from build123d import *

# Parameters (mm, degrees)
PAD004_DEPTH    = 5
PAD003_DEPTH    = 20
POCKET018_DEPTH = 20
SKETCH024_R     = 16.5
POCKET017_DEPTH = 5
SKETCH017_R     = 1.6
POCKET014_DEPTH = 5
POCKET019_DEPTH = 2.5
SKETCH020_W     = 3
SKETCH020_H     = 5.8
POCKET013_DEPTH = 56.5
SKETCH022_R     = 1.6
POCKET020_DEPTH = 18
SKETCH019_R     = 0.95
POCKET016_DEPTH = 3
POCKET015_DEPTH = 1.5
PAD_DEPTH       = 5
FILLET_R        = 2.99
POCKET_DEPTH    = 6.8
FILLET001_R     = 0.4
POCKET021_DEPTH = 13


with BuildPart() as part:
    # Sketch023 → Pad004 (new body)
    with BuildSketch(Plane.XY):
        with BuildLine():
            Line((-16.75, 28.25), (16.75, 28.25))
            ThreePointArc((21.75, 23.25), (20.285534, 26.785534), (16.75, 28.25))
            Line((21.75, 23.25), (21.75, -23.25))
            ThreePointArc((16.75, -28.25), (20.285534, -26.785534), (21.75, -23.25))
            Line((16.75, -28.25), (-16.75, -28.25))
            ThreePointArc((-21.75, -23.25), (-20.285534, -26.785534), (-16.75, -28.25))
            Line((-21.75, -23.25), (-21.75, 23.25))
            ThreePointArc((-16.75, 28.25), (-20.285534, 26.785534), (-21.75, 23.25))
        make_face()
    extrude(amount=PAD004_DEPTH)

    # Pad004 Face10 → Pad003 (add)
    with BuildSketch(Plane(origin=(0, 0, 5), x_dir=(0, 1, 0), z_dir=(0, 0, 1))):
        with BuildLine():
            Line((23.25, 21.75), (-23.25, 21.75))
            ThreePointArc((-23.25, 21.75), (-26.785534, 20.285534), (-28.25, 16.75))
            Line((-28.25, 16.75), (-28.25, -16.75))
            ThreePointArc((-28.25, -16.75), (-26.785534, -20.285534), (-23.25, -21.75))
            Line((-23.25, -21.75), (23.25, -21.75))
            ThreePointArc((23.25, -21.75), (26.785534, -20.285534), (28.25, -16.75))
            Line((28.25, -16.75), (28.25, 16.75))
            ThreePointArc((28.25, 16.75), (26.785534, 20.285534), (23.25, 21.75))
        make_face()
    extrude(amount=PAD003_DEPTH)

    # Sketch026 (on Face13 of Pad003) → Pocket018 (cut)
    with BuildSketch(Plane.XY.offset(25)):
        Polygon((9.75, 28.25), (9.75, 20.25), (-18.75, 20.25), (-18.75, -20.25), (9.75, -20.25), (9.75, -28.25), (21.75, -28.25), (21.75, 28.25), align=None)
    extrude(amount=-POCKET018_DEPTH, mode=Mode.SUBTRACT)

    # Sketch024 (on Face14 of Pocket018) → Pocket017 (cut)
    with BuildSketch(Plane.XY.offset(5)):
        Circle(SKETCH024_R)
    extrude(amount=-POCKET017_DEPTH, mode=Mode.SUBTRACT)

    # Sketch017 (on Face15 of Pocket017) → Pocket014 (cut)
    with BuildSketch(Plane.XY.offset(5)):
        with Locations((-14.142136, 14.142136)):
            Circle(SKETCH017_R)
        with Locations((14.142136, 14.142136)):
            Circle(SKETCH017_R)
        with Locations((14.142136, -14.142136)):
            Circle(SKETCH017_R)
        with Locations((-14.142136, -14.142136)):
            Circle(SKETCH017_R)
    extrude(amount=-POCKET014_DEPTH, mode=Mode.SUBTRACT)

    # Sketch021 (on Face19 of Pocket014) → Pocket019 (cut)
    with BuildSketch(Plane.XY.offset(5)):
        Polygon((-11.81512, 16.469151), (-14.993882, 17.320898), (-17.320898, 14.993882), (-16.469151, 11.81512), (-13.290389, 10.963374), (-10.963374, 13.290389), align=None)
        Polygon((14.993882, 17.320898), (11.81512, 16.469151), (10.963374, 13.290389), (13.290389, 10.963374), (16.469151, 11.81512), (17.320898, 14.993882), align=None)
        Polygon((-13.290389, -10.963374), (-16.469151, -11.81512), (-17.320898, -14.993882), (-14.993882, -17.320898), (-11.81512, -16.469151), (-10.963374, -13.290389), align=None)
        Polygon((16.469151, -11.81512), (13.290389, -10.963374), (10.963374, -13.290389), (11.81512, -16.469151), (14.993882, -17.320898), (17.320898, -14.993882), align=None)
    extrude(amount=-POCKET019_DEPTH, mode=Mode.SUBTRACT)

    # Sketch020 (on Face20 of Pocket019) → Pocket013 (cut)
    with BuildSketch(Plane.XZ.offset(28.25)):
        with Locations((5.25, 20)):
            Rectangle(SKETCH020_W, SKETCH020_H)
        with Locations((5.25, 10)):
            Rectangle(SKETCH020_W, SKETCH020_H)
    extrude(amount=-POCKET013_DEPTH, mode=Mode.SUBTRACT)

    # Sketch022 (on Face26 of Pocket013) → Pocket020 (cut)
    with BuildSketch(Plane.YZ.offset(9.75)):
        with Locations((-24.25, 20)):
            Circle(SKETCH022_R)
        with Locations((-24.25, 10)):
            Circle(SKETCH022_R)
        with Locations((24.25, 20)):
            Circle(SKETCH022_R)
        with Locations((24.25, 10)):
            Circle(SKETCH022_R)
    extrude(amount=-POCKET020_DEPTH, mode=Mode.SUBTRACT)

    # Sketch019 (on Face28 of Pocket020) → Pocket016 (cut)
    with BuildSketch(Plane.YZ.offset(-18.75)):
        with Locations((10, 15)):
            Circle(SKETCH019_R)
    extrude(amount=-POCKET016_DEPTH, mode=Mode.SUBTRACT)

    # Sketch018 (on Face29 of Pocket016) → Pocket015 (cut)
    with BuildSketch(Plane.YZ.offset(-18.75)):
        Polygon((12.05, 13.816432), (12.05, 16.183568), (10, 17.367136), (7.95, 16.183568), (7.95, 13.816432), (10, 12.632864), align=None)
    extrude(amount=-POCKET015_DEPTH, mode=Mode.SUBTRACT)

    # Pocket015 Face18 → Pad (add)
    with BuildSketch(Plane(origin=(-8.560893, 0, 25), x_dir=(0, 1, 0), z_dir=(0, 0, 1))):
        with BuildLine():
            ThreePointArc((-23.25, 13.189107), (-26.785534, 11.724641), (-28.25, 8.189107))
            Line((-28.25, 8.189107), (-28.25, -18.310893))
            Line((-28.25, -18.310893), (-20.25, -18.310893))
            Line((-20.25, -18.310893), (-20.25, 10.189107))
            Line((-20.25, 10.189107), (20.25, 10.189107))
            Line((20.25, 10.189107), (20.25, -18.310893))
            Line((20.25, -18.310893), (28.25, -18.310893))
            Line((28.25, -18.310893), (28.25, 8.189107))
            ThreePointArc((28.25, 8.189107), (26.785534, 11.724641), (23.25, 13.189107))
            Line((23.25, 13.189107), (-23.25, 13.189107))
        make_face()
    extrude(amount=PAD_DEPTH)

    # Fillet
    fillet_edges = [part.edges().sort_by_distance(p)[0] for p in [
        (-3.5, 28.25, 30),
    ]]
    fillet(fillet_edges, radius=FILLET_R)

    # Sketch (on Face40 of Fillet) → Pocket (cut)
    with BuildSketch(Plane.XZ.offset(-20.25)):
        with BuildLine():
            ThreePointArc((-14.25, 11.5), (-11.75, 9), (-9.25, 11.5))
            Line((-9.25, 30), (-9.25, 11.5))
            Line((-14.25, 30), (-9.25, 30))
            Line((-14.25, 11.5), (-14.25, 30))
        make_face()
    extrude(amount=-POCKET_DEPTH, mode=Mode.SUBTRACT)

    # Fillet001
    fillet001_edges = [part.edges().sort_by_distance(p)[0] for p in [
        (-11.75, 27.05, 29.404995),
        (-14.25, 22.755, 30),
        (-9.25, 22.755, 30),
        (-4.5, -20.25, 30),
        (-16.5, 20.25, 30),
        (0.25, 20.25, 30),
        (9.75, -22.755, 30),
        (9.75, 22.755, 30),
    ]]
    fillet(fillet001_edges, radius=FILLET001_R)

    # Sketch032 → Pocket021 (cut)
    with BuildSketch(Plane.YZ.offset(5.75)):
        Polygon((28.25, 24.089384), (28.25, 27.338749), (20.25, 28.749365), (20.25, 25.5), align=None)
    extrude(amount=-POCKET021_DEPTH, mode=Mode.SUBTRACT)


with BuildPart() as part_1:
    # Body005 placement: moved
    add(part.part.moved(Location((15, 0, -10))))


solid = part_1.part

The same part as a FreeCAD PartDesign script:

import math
import FreeCAD as App
import Part
import Sketcher

V = App.Vector
Q = App.Units.Quantity


def edges_at(feature, points):
    """Names of the edges that pass closest to the given points."""
    edges = feature.Shape.Edges
    near = lambda p: min(range(len(edges)), key=lambda i: edges[i].distToShape(Part.Vertex(*p))[0])
    return sorted({f"Edge{near(p) + 1}" for p in points})


def add_polygon(sketch, points):
    """Adds a closed chain of lines whose ends are joined by coincident constraints."""
    first, n = sketch.GeometryCount, len(points)
    for a, b in zip(points, points[1:] + points[:1]):
        sketch.addGeometry(Part.LineSegment(App.Vector(*a, 0), App.Vector(*b, 0)), False)
    for i in range(n):
        sketch.addConstraint(Sketcher.Constraint("Coincident", first + i, 2, first + (i + 1) % n, 1))

doc = App.newDocument("Part")
body = doc.addObject("PartDesign::Body", "Body")

# Sketch on XY plane
sketch1 = body.newObject("Sketcher::SketchObject", "Sketch")
sketch1.AttachmentSupport = (doc.getObject("XY_Plane"), [""])
sketch1.MapMode = "FlatFace"
sketch1.addGeometry(Part.LineSegment(V(16.8, 28.2, 0), V(-16.8, 28.2, 0)), False)
sketch1.addGeometry(Part.ArcOfCircle(Part.Circle(V(-16.8, 23.3, 0), V(0, 0, 1), 5), math.radians(90), math.radians(180)), False)
sketch1.addGeometry(Part.LineSegment(V(-21.8, 23.2, 0), V(-21.8, -23.2, 0)), False)
sketch1.addGeometry(Part.ArcOfCircle(Part.Circle(V(-16.8, -23.3, 0), V(0, 0, 1), 5), math.radians(180), math.radians(270)), False)
sketch1.addGeometry(Part.LineSegment(V(-16.8, -28.2, 0), V(16.8, -28.2, 0)), False)
sketch1.addGeometry(Part.ArcOfCircle(Part.Circle(V(16.8, -23.3, 0), V(0, 0, 1), 5), math.radians(-90), math.radians(0)), False)
sketch1.addGeometry(Part.LineSegment(V(21.8, -23.2, 0), V(21.8, 23.2, 0)), False)
sketch1.addGeometry(Part.ArcOfCircle(Part.Circle(V(16.8, 23.3, 0), V(0, 0, 1), 5), math.radians(0), math.radians(90)), False)
sketch1.addConstraint(Sketcher.Constraint("Tangent", 0, 2, 1, 1))
sketch1.addConstraint(Sketcher.Constraint("Tangent", 1, 2, 2, 1))
sketch1.addConstraint(Sketcher.Constraint("Tangent", 2, 2, 3, 1))
sketch1.addConstraint(Sketcher.Constraint("Tangent", 3, 2, 4, 1))
sketch1.addConstraint(Sketcher.Constraint("Tangent", 4, 2, 5, 1))
sketch1.addConstraint(Sketcher.Constraint("Tangent", 5, 2, 6, 1))
sketch1.addConstraint(Sketcher.Constraint("Tangent", 6, 2, 7, 1))
sketch1.addConstraint(Sketcher.Constraint("Tangent", 7, 2, 0, 1))
sketch1.addConstraint(Sketcher.Constraint("Horizontal", 0))
sketch1.addConstraint(Sketcher.Constraint("Vertical", 2))
sketch1.addConstraint(Sketcher.Constraint("Horizontal", 4))
sketch1.addConstraint(Sketcher.Constraint("Vertical", 6))
sketch1.addConstraint(Sketcher.Constraint("Equal", 1, 3))
sketch1.addConstraint(Sketcher.Constraint("Equal", 3, 5))
sketch1.addConstraint(Sketcher.Constraint("Equal", 5, 7))
sketch1.addConstraint(Sketcher.Constraint("Symmetric", 1, 3, 5, 3, -1, 1))
sketch1.addConstraint(Sketcher.Constraint("Radius", 1, Q("5 mm")))
sketch1.addConstraint(Sketcher.Constraint("DistanceX", 0, 2, 0, 1, Q("33.5 mm")))
sketch1.addConstraint(Sketcher.Constraint("DistanceY", 2, 2, 2, 1, Q("46.5 mm")))
pad1 = body.newObject("PartDesign::Pad", "Pad")
pad1.Profile = sketch1
pad1.Length = 5

# Sketch on XY plane
sketch2 = body.newObject("Sketcher::SketchObject", "Sketch001")
sketch2.AttachmentSupport = (doc.getObject("XY_Plane"), [""])
sketch2.MapMode = "FlatFace"
sketch2.AttachmentOffset = App.Placement(V(0, 0, 5), App.Rotation())
sketch2.addGeometry(Part.LineSegment(V(-21.8, 23.2, 0), V(-21.8, -23.2, 0)), False)
sketch2.addGeometry(Part.ArcOfCircle(Part.Circle(V(-16.8, -23.3, 0), V(0, 0, 1), 5), math.radians(180), math.radians(270)), False)
sketch2.addGeometry(Part.LineSegment(V(-16.8, -28.2, 0), V(16.8, -28.2, 0)), False)
sketch2.addGeometry(Part.ArcOfCircle(Part.Circle(V(16.8, -23.3, 0), V(0, 0, 1), 5), math.radians(-90), math.radians(0)), False)
sketch2.addGeometry(Part.LineSegment(V(21.8, -23.2, 0), V(21.8, 23.2, 0)), False)
sketch2.addGeometry(Part.ArcOfCircle(Part.Circle(V(16.8, 23.3, 0), V(0, 0, 1), 5), math.radians(0), math.radians(90)), False)
sketch2.addGeometry(Part.LineSegment(V(16.8, 28.2, 0), V(-16.8, 28.2, 0)), False)
sketch2.addGeometry(Part.ArcOfCircle(Part.Circle(V(-16.8, 23.3, 0), V(0, 0, 1), 5), math.radians(90), math.radians(180)), False)
sketch2.addConstraint(Sketcher.Constraint("Tangent", 0, 2, 1, 1))
sketch2.addConstraint(Sketcher.Constraint("Tangent", 1, 2, 2, 1))
sketch2.addConstraint(Sketcher.Constraint("Tangent", 2, 2, 3, 1))
sketch2.addConstraint(Sketcher.Constraint("Tangent", 3, 2, 4, 1))
sketch2.addConstraint(Sketcher.Constraint("Tangent", 4, 2, 5, 1))
sketch2.addConstraint(Sketcher.Constraint("Tangent", 5, 2, 6, 1))
sketch2.addConstraint(Sketcher.Constraint("Tangent", 6, 2, 7, 1))
sketch2.addConstraint(Sketcher.Constraint("Tangent", 7, 2, 0, 1))
sketch2.addConstraint(Sketcher.Constraint("Vertical", 0))
sketch2.addConstraint(Sketcher.Constraint("Horizontal", 2))
sketch2.addConstraint(Sketcher.Constraint("Vertical", 4))
sketch2.addConstraint(Sketcher.Constraint("Horizontal", 6))
sketch2.addConstraint(Sketcher.Constraint("Equal", 1, 3))
sketch2.addConstraint(Sketcher.Constraint("Equal", 3, 5))
sketch2.addConstraint(Sketcher.Constraint("Equal", 5, 7))
sketch2.addConstraint(Sketcher.Constraint("Symmetric", 1, 3, 5, 3, -1, 1))
sketch2.addConstraint(Sketcher.Constraint("Radius", 1, Q("5 mm")))
sketch2.addConstraint(Sketcher.Constraint("DistanceX", 2, 1, 2, 2, Q("33.5 mm")))
sketch2.addConstraint(Sketcher.Constraint("DistanceY", 0, 2, 0, 1, Q("46.5 mm")))
pad2 = body.newObject("PartDesign::Pad", "Pad001")
pad2.Profile = sketch2
pad2.Length = 20

# Sketch on XY plane
sketch3 = body.newObject("Sketcher::SketchObject", "Sketch002")
sketch3.AttachmentSupport = (doc.getObject("XY_Plane"), [""])
sketch3.MapMode = "FlatFace"
sketch3.AttachmentOffset = App.Placement(V(0, 0, 25), App.Rotation())
add_polygon(sketch3, [(10, 28), (10, 20), (-19, 20), (-19, -20), (10, -20), (10, -28), (22, -28), (22, 28)])  # lines 0-7
sketch3.addConstraint(Sketcher.Constraint("Vertical", 0))
sketch3.addConstraint(Sketcher.Constraint("Horizontal", 1))
sketch3.addConstraint(Sketcher.Constraint("Vertical", 2))
sketch3.addConstraint(Sketcher.Constraint("Horizontal", 3))
sketch3.addConstraint(Sketcher.Constraint("Vertical", 4))
sketch3.addConstraint(Sketcher.Constraint("Horizontal", 5))
sketch3.addConstraint(Sketcher.Constraint("Vertical", 6))
sketch3.addConstraint(Sketcher.Constraint("Horizontal", 7))
sketch3.addConstraint(Sketcher.Constraint("Symmetric", 0, 2, 3, 2, -1))
sketch3.addConstraint(Sketcher.Constraint("Equal", 0, 4))
sketch3.addConstraint(Sketcher.Constraint("DistanceX", 5, 1, 5, 2, Q("12 mm")))
sketch3.addConstraint(Sketcher.Constraint("DistanceY", 0, 2, 0, 1, Q("8 mm")))
sketch3.addConstraint(Sketcher.Constraint("DistanceX", 1, 2, 1, 1, Q("28.5 mm")))
sketch3.addConstraint(Sketcher.Constraint("DistanceY", 2, 2, 2, 1, Q("40.5 mm")))
sketch3.addConstraint(Sketcher.Constraint("DistanceX", -1, 1, 0, 2, Q("9.75 mm")))
pocket1 = body.newObject("PartDesign::Pocket", "Pocket")
pocket1.Profile = sketch3
pocket1.Length = 20

# Sketch on XY plane
sketch4 = body.newObject("Sketcher::SketchObject", "Sketch003")
sketch4.AttachmentSupport = (doc.getObject("XY_Plane"), [""])
sketch4.MapMode = "FlatFace"
sketch4.AttachmentOffset = App.Placement(V(0, 0, 5), App.Rotation())
sketch4.addGeometry(Part.Circle(V(0, 0, 0), V(0, 0, 1), 16), False)
sketch4.addConstraint(Sketcher.Constraint("Coincident", 0, 3, -1, 1))
sketch4.addConstraint(Sketcher.Constraint("Diameter", 0, Q("33 mm")))
pocket2 = body.newObject("PartDesign::Pocket", "Pocket001")
pocket2.Profile = sketch4
pocket2.Length = 5

# Sketch on XY plane
sketch5 = body.newObject("Sketcher::SketchObject", "Sketch004")
sketch5.AttachmentSupport = (doc.getObject("XY_Plane"), [""])
sketch5.MapMode = "FlatFace"
sketch5.AttachmentOffset = App.Placement(V(0, 0, 5), App.Rotation())
sketch5.addGeometry(Part.Circle(V(-14.1, 14.1, 0), V(0, 0, 1), 1.6), False)
sketch5.addGeometry(Part.Circle(V(14.1, 14.1, 0), V(0, 0, 1), 1.6), False)
sketch5.addGeometry(Part.Circle(V(14.1, -14.1, 0), V(0, 0, 1), 1.6), False)
sketch5.addGeometry(Part.Circle(V(-14.1, -14.1, 0), V(0, 0, 1), 1.6), False)
sketch5.addConstraint(Sketcher.Constraint("Equal", 0, 1))
sketch5.addConstraint(Sketcher.Constraint("Equal", 1, 2))
sketch5.addConstraint(Sketcher.Constraint("Equal", 2, 3))
sketch5.addConstraint(Sketcher.Constraint("Symmetric", 0, 3, 2, 3, -1, 1))
sketch5.addConstraint(Sketcher.Constraint("Symmetric", 1, 3, 3, 3, -1, 1))
sketch5.addConstraint(Sketcher.Constraint("Symmetric", 0, 3, 1, 3, -2))
sketch5.addConstraint(Sketcher.Constraint("Diameter", 0, Q("3.2 mm")))
sketch5.addConstraint(Sketcher.Constraint("DistanceX", 0, 3, -1, 1, Q("14.142136 mm")))
sketch5.addConstraint(Sketcher.Constraint("DistanceY", -1, 1, 0, 3, Q("14.142136 mm")))
pocket3 = body.newObject("PartDesign::Pocket", "Pocket002")
pocket3.Profile = sketch5
pocket3.Length = 5

# Sketch on XY plane
sketch6 = body.newObject("Sketcher::SketchObject", "Sketch005")
sketch6.AttachmentSupport = (doc.getObject("XY_Plane"), [""])
sketch6.MapMode = "FlatFace"
sketch6.AttachmentOffset = App.Placement(V(0, 0, 5), App.Rotation())
add_polygon(sketch6, [(-11.8, 16.5), (-15, 17.3), (-17.3, 15), (-16.5, 11.8), (-13.3, 11), (-11, 13.3)])  # lines 0-5
add_polygon(sketch6, [(15, 17.3), (11.8, 16.5), (11, 13.3), (13.3, 11), (16.5, 11.8), (17.3, 15)])  # lines 6-11
add_polygon(sketch6, [(-13.3, -11), (-16.5, -11.8), (-17.3, -15), (-15, -17.3), (-11.8, -16.5), (-11, -13.3)])  # lines 12-17
add_polygon(sketch6, [(16.5, -11.8), (13.3, -11), (11, -13.3), (11.8, -16.5), (15, -17.3), (17.3, -15)])  # lines 18-23
sketch6.addConstraint(Sketcher.Constraint("Symmetric", 9, 2, 12, 2, -1, 1))
sketch6.addConstraint(Sketcher.Constraint("Symmetric", 10, 2, 13, 2, -1, 1))
sketch6.addConstraint(Sketcher.Constraint("Symmetric", 11, 2, 14, 2, -1, 1))
sketch6.addConstraint(Sketcher.Constraint("Symmetric", 6, 2, 15, 2, -1, 1))
sketch6.addConstraint(Sketcher.Constraint("Symmetric", 7, 2, 16, 2, -1, 1))
sketch6.addConstraint(Sketcher.Constraint("Symmetric", 8, 2, 17, 2, -1, 1))
sketch6.addConstraint(Sketcher.Constraint("Symmetric", 3, 2, 18, 2, -1, 1))
sketch6.addConstraint(Sketcher.Constraint("Symmetric", 4, 2, 19, 2, -1, 1))
sketch6.addConstraint(Sketcher.Constraint("Symmetric", 5, 2, 20, 2, -1, 1))
sketch6.addConstraint(Sketcher.Constraint("Symmetric", 0, 2, 21, 2, -1, 1))
sketch6.addConstraint(Sketcher.Constraint("Symmetric", 1, 2, 22, 2, -1, 1))
sketch6.addConstraint(Sketcher.Constraint("Symmetric", 2, 2, 23, 2, -1, 1))
sketch6.addConstraint(Sketcher.Constraint("Symmetric", 5, 2, 6, 2, -2))
sketch6.addConstraint(Sketcher.Constraint("Symmetric", 4, 2, 7, 2, -2))
sketch6.addConstraint(Sketcher.Constraint("Symmetric", 3, 2, 8, 2, -2))
sketch6.addConstraint(Sketcher.Constraint("Symmetric", 2, 2, 9, 2, -2))
sketch6.addConstraint(Sketcher.Constraint("Symmetric", 1, 2, 10, 2, -2))
sketch6.addConstraint(Sketcher.Constraint("Symmetric", 0, 2, 11, 2, -2))
sketch6.addConstraint(Sketcher.Constraint("Parallel", 0, 3))
sketch6.addConstraint(Sketcher.Constraint("Parallel", 1, 4))
sketch6.addConstraint(Sketcher.Constraint("Parallel", 2, 5))
sketch6.addConstraint(Sketcher.Constraint("Perpendicular", 5, 6))
sketch6.addConstraint(Sketcher.Constraint("Perpendicular", 4, 8))
sketch6.addConstraint(Sketcher.Constraint("Equal", 0, 1))
sketch6.addConstraint(Sketcher.Constraint("Equal", 1, 2))
sketch6.addConstraint(Sketcher.Constraint("Equal", 2, 3))
sketch6.addConstraint(Sketcher.Constraint("Angle", 0, Q("164.999995 deg")))
sketch6.addConstraint(Sketcher.Constraint("DistanceX", 0, 2, 6, 2, Q("26.809002 mm")))
sketch6.addConstraint(Sketcher.Constraint("DistanceY", 12, 2, 1, 2, Q("26.809002 mm")))
sketch6.addConstraint(Sketcher.Constraint("DistanceX", 0, 2, -1, 1, Q("14.993882 mm")))
pocket4 = body.newObject("PartDesign::Pocket", "Pocket003")
pocket4.Profile = sketch6
pocket4.Length = 2.5

# Sketch on XZ plane
sketch7 = body.newObject("Sketcher::SketchObject", "Sketch006")
sketch7.AttachmentSupport = (doc.getObject("XZ_Plane"), [""])
sketch7.MapMode = "FlatFace"
sketch7.AttachmentOffset = App.Placement(V(0, 0, 28.25), App.Rotation())
add_polygon(sketch7, [(3.8, 22.9), (3.8, 17.1), (6.8, 17.1), (6.8, 22.9)])  # lines 0-3
add_polygon(sketch7, [(3.8, 12.9), (3.8, 7.1), (6.8, 7.1), (6.8, 12.9)])  # lines 4-7
sketch7.addConstraint(Sketcher.Constraint("Vertical", 0))
sketch7.addConstraint(Sketcher.Constraint("Horizontal", 1))
sketch7.addConstraint(Sketcher.Constraint("Vertical", 2))
sketch7.addConstraint(Sketcher.Constraint("Horizontal", 3))
sketch7.addConstraint(Sketcher.Constraint("Vertical", 4))
sketch7.addConstraint(Sketcher.Constraint("Horizontal", 5))
sketch7.addConstraint(Sketcher.Constraint("Vertical", 6))
sketch7.addConstraint(Sketcher.Constraint("Horizontal", 7))
sketch7.addConstraint(Sketcher.Constraint("Vertical", 3, 2, 4, 2))
sketch7.addConstraint(Sketcher.Constraint("Vertical", 2, 2, 5, 2))
sketch7.addConstraint(Sketcher.Constraint("Equal", 2, 4))
sketch7.addConstraint(Sketcher.Constraint("DistanceX", 1, 1, 1, 2, Q("3 mm")))
sketch7.addConstraint(Sketcher.Constraint("DistanceY", 0, 2, 0, 1, Q("5.8 mm")))
sketch7.addConstraint(Sketcher.Constraint("DistanceY", 4, 2, 0, 2, Q("10 mm")))
sketch7.addConstraint(Sketcher.Constraint("DistanceY", -1, 1, 0, 2, Q("17.1 mm")))
sketch7.addConstraint(Sketcher.Constraint("DistanceX", -1, 1, 0, 2, Q("3.75 mm")))
pocket5 = body.newObject("PartDesign::Pocket", "Pocket004")
pocket5.Profile = sketch7
pocket5.Length = 56.5

# Sketch on YZ plane
sketch8 = body.newObject("Sketcher::SketchObject", "Sketch007")
sketch8.AttachmentSupport = (doc.getObject("YZ_Plane"), [""])
sketch8.MapMode = "FlatFace"
sketch8.AttachmentOffset = App.Placement(V(0, 0, 9.75), App.Rotation())
sketch8.addGeometry(Part.Circle(V(-24.2, 20, 0), V(0, 0, 1), 1.6), False)
sketch8.addGeometry(Part.Circle(V(-24.2, 10, 0), V(0, 0, 1), 1.6), False)
sketch8.addGeometry(Part.Circle(V(24.2, 20, 0), V(0, 0, 1), 1.6), False)
sketch8.addGeometry(Part.Circle(V(24.2, 10, 0), V(0, 0, 1), 1.6), False)
sketch8.addConstraint(Sketcher.Constraint("Equal", 0, 1))
sketch8.addConstraint(Sketcher.Constraint("Equal", 1, 2))
sketch8.addConstraint(Sketcher.Constraint("Equal", 2, 3))
sketch8.addConstraint(Sketcher.Constraint("Symmetric", 0, 3, 2, 3, -2))
sketch8.addConstraint(Sketcher.Constraint("Symmetric", 1, 3, 3, 3, -2))
sketch8.addConstraint(Sketcher.Constraint("Vertical", 0, 3, 1, 3))
sketch8.addConstraint(Sketcher.Constraint("Diameter", 0, Q("3.2 mm")))
sketch8.addConstraint(Sketcher.Constraint("DistanceY", -1, 1, 0, 3, Q("20 mm")))
sketch8.addConstraint(Sketcher.Constraint("DistanceY", -1, 1, 1, 3, Q("10 mm")))
sketch8.addConstraint(Sketcher.Constraint("DistanceX", 0, 3, 2, 3, Q("48.5 mm")))
pocket6 = body.newObject("PartDesign::Pocket", "Pocket005")
pocket6.Profile = sketch8
pocket6.Length = 18

# Sketch on YZ plane
sketch9 = body.newObject("Sketcher::SketchObject", "Sketch008")
sketch9.AttachmentSupport = (doc.getObject("YZ_Plane"), [""])
sketch9.MapMode = "FlatFace"
sketch9.AttachmentOffset = App.Placement(V(0, 0, -18.75), App.Rotation())
sketch9.addGeometry(Part.Circle(V(10, 15, 0), V(0, 0, 1), 0.9), False)
sketch9.addConstraint(Sketcher.Constraint("Diameter", 0, Q("1.9 mm")))
sketch9.addConstraint(Sketcher.Constraint("DistanceX", -1, 1, 0, 3, Q("10 mm")))
sketch9.addConstraint(Sketcher.Constraint("DistanceY", -1, 1, 0, 3, Q("15 mm")))
pocket7 = body.newObject("PartDesign::Pocket", "Pocket006")
pocket7.Profile = sketch9
pocket7.Length = 3

# Sketch on YZ plane
sketch10 = body.newObject("Sketcher::SketchObject", "Sketch009")
sketch10.AttachmentSupport = (doc.getObject("YZ_Plane"), [""])
sketch10.MapMode = "FlatFace"
sketch10.AttachmentOffset = App.Placement(V(0, 0, -18.75), App.Rotation())
add_polygon(sketch10, [(12.1, 13.8), (12.1, 16.2), (10, 17.4), (8, 16.2), (8, 13.8), (10, 12.6)])  # lines 0-5
sketch10.addConstraint(Sketcher.Constraint("Vertical", 0))
sketch10.addConstraint(Sketcher.Constraint("Vertical", 3))
sketch10.addConstraint(Sketcher.Constraint("Parallel", 1, 4))
sketch10.addConstraint(Sketcher.Constraint("Parallel", 2, 5))
sketch10.addConstraint(Sketcher.Constraint("Horizontal", 0, 2, 2, 2))
sketch10.addConstraint(Sketcher.Constraint("Horizontal", 3, 2, 5, 2))
sketch10.addConstraint(Sketcher.Constraint("Vertical", 1, 2, 4, 2))
sketch10.addConstraint(Sketcher.Constraint("Angle", 1, Q("150.000001 deg")))
sketch10.addConstraint(Sketcher.Constraint("DistanceX", -1, 1, 1, 2, Q("10 mm")))
sketch10.addConstraint(Sketcher.Constraint("DistanceX", 2, 2, 0, 2, Q("4.1 mm")))
sketch10.addConstraint(Sketcher.Constraint("DistanceY", 0, 1, 0, 2, Q("2.367136 mm")))
sketch10.addConstraint(Sketcher.Constraint("DistanceY", -1, 1, 0, 2, Q("16.183568 mm")))
pocket8 = body.newObject("PartDesign::Pocket", "Pocket007")
pocket8.Profile = sketch10
pocket8.Length = 1.5

# Sketch on XY plane
sketch11 = body.newObject("Sketcher::SketchObject", "Sketch010")
sketch11.AttachmentSupport = (doc.getObject("XY_Plane"), [""])
sketch11.MapMode = "FlatFace"
sketch11.AttachmentOffset = App.Placement(V(0, 0, 25), App.Rotation())
sketch11.addGeometry(Part.ArcOfCircle(Part.Circle(V(-16.8, -23.3, 0), V(0, 0, 1), 5), math.radians(180), math.radians(270)), False)
sketch11.addGeometry(Part.LineSegment(V(-16.8, -28.2, 0), V(9.8, -28.2, 0)), False)
sketch11.addGeometry(Part.LineSegment(V(9.8, -28.2, 0), V(9.8, -20.2, 0)), False)
sketch11.addGeometry(Part.LineSegment(V(9.8, -20.2, 0), V(-18.8, -20.2, 0)), False)
sketch11.addGeometry(Part.LineSegment(V(-18.8, -20.2, 0), V(-18.8, 20.2, 0)), False)
sketch11.addGeometry(Part.LineSegment(V(-18.8, 20.2, 0), V(9.8, 20.2, 0)), False)
sketch11.addGeometry(Part.LineSegment(V(9.8, 20.2, 0), V(9.8, 28.2, 0)), False)
sketch11.addGeometry(Part.LineSegment(V(9.8, 28.2, 0), V(-16.8, 28.2, 0)), False)
sketch11.addGeometry(Part.ArcOfCircle(Part.Circle(V(-16.8, 23.3, 0), V(0, 0, 1), 5), math.radians(90), math.radians(180)), False)
sketch11.addGeometry(Part.LineSegment(V(-21.8, 23.2, 0), V(-21.8, -23.2, 0)), False)
sketch11.addConstraint(Sketcher.Constraint("Tangent", 0, 2, 1, 1))
sketch11.addConstraint(Sketcher.Constraint("Coincident", 1, 2, 2, 1))
sketch11.addConstraint(Sketcher.Constraint("Coincident", 2, 2, 3, 1))
sketch11.addConstraint(Sketcher.Constraint("Coincident", 3, 2, 4, 1))
sketch11.addConstraint(Sketcher.Constraint("Coincident", 4, 2, 5, 1))
sketch11.addConstraint(Sketcher.Constraint("Coincident", 5, 2, 6, 1))
sketch11.addConstraint(Sketcher.Constraint("Coincident", 6, 2, 7, 1))
sketch11.addConstraint(Sketcher.Constraint("Tangent", 7, 2, 8, 1))
sketch11.addConstraint(Sketcher.Constraint("Tangent", 8, 2, 9, 1))
sketch11.addConstraint(Sketcher.Constraint("Tangent", 9, 2, 0, 1))
sketch11.addConstraint(Sketcher.Constraint("Horizontal", 1))
sketch11.addConstraint(Sketcher.Constraint("Vertical", 2))
sketch11.addConstraint(Sketcher.Constraint("Horizontal", 3))
sketch11.addConstraint(Sketcher.Constraint("Vertical", 4))
sketch11.addConstraint(Sketcher.Constraint("Horizontal", 5))
sketch11.addConstraint(Sketcher.Constraint("Vertical", 6))
sketch11.addConstraint(Sketcher.Constraint("Horizontal", 7))
sketch11.addConstraint(Sketcher.Constraint("Vertical", 9))
sketch11.addConstraint(Sketcher.Constraint("Equal", 0, 8))
sketch11.addConstraint(Sketcher.Constraint("Symmetric", 2, 2, 5, 2, -1))
sketch11.addConstraint(Sketcher.Constraint("Equal", 2, 6))
sketch11.addConstraint(Sketcher.Constraint("Radius", 0, Q("5 mm")))
sketch11.addConstraint(Sketcher.Constraint("DistanceY", 2, 1, 2, 2, Q("8 mm")))
sketch11.addConstraint(Sketcher.Constraint("DistanceX", 1, 1, 1, 2, Q("26.5 mm")))
sketch11.addConstraint(Sketcher.Constraint("DistanceX", 3, 2, 3, 1, Q("28.5 mm")))
sketch11.addConstraint(Sketcher.Constraint("DistanceY", 4, 1, 4, 2, Q("40.5 mm")))
sketch11.addConstraint(Sketcher.Constraint("DistanceX", 0, 3, -1, 1, Q("16.75 mm")))
pad3 = body.newObject("PartDesign::Pad", "Pad002")
pad3.Profile = sketch11
pad3.Length = 5
doc.recompute()

fillet = body.newObject("PartDesign::Fillet", "Fillet")
fillet.Base = (pad3, edges_at(pad3, [(-3.5, 28.25, 30)]))
fillet.Radius = 2.99

# Sketch on XZ plane
sketch12 = body.newObject("Sketcher::SketchObject", "Sketch011")
sketch12.AttachmentSupport = (doc.getObject("XZ_Plane"), [""])
sketch12.MapMode = "FlatFace"
sketch12.AttachmentOffset = App.Placement(V(0, 0, -20.25), App.Rotation())
sketch12.addGeometry(Part.ArcOfCircle(Part.Circle(V(-11.8, 11.5, 0), V(0, 0, 1), 2.5), math.radians(180), math.radians(360)), False)
sketch12.addGeometry(Part.LineSegment(V(-9.2, 11.5, 0), V(-9.2, 30, 0)), False)
sketch12.addGeometry(Part.LineSegment(V(-9.2, 30, 0), V(-14.2, 30, 0)), False)
sketch12.addGeometry(Part.LineSegment(V(-14.2, 30, 0), V(-14.2, 11.5, 0)), False)
sketch12.addConstraint(Sketcher.Constraint("Tangent", 0, 2, 1, 1))
sketch12.addConstraint(Sketcher.Constraint("Coincident", 1, 2, 2, 1))
sketch12.addConstraint(Sketcher.Constraint("Coincident", 2, 2, 3, 1))
sketch12.addConstraint(Sketcher.Constraint("Tangent", 3, 2, 0, 1))
sketch12.addConstraint(Sketcher.Constraint("Vertical", 1))
sketch12.addConstraint(Sketcher.Constraint("Horizontal", 2))
sketch12.addConstraint(Sketcher.Constraint("Vertical", 3))
sketch12.addConstraint(Sketcher.Constraint("Radius", 0, Q("2.5 mm")))
sketch12.addConstraint(Sketcher.Constraint("DistanceY", 1, 1, 1, 2, Q("18.5 mm")))
sketch12.addConstraint(Sketcher.Constraint("DistanceY", -1, 1, 1, 2, Q("30 mm")))
sketch12.addConstraint(Sketcher.Constraint("DistanceX", 0, 3, -1, 1, Q("11.75 mm")))
pocket9 = body.newObject("PartDesign::Pocket", "Pocket008")
pocket9.Profile = sketch12
pocket9.Length = 6.8
doc.recompute()

fillet2 = body.newObject("PartDesign::Fillet", "Fillet001")
fillet2.Base = (pocket9, edges_at(pocket9, [
    (-11.75, 27.05, 29.405),
    (-14.25, 22.755, 30),
    (-9.25, 22.755, 30),
    (-4.5, -20.25, 30),
    (-16.5, 20.25, 30),
    (0.25, 20.25, 30),
    (9.75, -22.755, 30),
    (9.75, 22.755, 30),
]))
fillet2.Radius = 0.4

# Sketch on YZ plane
sketch13 = body.newObject("Sketcher::SketchObject", "Sketch012")
sketch13.AttachmentSupport = (doc.getObject("YZ_Plane"), [""])
sketch13.MapMode = "FlatFace"
sketch13.AttachmentOffset = App.Placement(V(0, 0, 5.75), App.Rotation())
add_polygon(sketch13, [(28.2, 24.1), (28.2, 27.3), (20.2, 28.7), (20.2, 25.5)])  # lines 0-3
sketch13.addConstraint(Sketcher.Constraint("Vertical", 0))
sketch13.addConstraint(Sketcher.Constraint("Vertical", 2))
sketch13.addConstraint(Sketcher.Constraint("Parallel", 1, 3))
sketch13.addConstraint(Sketcher.Constraint("Angle", 1, Q("169.999999 deg")))
sketch13.addConstraint(Sketcher.Constraint("DistanceX", 1, 2, 0, 2, Q("8 mm")))
sketch13.addConstraint(Sketcher.Constraint("DistanceY", -1, 1, 2, 2, Q("25.5 mm")))
sketch13.addConstraint(Sketcher.Constraint("DistanceX", -1, 1, 0, 2, Q("28.25 mm")))
sketch13.addConstraint(Sketcher.Constraint("DistanceY", 0, 1, 0, 2, Q("3.249365 mm")))
pocket10 = body.newObject("PartDesign::Pocket", "Pocket009")
pocket10.Profile = sketch13
pocket10.Length = 13
body2 = doc.addObject("PartDesign::Body", "Body001")
doc.recompute()

body.Placement = App.Placement(V(15, 0, -10), App.Rotation(V(0, 0, 1), 0))
boolean = body2.newObject("PartDesign::Boolean", "Boolean")
boolean.Type = "Fuse"
boolean.addObjects([body])

doc.recompute()
